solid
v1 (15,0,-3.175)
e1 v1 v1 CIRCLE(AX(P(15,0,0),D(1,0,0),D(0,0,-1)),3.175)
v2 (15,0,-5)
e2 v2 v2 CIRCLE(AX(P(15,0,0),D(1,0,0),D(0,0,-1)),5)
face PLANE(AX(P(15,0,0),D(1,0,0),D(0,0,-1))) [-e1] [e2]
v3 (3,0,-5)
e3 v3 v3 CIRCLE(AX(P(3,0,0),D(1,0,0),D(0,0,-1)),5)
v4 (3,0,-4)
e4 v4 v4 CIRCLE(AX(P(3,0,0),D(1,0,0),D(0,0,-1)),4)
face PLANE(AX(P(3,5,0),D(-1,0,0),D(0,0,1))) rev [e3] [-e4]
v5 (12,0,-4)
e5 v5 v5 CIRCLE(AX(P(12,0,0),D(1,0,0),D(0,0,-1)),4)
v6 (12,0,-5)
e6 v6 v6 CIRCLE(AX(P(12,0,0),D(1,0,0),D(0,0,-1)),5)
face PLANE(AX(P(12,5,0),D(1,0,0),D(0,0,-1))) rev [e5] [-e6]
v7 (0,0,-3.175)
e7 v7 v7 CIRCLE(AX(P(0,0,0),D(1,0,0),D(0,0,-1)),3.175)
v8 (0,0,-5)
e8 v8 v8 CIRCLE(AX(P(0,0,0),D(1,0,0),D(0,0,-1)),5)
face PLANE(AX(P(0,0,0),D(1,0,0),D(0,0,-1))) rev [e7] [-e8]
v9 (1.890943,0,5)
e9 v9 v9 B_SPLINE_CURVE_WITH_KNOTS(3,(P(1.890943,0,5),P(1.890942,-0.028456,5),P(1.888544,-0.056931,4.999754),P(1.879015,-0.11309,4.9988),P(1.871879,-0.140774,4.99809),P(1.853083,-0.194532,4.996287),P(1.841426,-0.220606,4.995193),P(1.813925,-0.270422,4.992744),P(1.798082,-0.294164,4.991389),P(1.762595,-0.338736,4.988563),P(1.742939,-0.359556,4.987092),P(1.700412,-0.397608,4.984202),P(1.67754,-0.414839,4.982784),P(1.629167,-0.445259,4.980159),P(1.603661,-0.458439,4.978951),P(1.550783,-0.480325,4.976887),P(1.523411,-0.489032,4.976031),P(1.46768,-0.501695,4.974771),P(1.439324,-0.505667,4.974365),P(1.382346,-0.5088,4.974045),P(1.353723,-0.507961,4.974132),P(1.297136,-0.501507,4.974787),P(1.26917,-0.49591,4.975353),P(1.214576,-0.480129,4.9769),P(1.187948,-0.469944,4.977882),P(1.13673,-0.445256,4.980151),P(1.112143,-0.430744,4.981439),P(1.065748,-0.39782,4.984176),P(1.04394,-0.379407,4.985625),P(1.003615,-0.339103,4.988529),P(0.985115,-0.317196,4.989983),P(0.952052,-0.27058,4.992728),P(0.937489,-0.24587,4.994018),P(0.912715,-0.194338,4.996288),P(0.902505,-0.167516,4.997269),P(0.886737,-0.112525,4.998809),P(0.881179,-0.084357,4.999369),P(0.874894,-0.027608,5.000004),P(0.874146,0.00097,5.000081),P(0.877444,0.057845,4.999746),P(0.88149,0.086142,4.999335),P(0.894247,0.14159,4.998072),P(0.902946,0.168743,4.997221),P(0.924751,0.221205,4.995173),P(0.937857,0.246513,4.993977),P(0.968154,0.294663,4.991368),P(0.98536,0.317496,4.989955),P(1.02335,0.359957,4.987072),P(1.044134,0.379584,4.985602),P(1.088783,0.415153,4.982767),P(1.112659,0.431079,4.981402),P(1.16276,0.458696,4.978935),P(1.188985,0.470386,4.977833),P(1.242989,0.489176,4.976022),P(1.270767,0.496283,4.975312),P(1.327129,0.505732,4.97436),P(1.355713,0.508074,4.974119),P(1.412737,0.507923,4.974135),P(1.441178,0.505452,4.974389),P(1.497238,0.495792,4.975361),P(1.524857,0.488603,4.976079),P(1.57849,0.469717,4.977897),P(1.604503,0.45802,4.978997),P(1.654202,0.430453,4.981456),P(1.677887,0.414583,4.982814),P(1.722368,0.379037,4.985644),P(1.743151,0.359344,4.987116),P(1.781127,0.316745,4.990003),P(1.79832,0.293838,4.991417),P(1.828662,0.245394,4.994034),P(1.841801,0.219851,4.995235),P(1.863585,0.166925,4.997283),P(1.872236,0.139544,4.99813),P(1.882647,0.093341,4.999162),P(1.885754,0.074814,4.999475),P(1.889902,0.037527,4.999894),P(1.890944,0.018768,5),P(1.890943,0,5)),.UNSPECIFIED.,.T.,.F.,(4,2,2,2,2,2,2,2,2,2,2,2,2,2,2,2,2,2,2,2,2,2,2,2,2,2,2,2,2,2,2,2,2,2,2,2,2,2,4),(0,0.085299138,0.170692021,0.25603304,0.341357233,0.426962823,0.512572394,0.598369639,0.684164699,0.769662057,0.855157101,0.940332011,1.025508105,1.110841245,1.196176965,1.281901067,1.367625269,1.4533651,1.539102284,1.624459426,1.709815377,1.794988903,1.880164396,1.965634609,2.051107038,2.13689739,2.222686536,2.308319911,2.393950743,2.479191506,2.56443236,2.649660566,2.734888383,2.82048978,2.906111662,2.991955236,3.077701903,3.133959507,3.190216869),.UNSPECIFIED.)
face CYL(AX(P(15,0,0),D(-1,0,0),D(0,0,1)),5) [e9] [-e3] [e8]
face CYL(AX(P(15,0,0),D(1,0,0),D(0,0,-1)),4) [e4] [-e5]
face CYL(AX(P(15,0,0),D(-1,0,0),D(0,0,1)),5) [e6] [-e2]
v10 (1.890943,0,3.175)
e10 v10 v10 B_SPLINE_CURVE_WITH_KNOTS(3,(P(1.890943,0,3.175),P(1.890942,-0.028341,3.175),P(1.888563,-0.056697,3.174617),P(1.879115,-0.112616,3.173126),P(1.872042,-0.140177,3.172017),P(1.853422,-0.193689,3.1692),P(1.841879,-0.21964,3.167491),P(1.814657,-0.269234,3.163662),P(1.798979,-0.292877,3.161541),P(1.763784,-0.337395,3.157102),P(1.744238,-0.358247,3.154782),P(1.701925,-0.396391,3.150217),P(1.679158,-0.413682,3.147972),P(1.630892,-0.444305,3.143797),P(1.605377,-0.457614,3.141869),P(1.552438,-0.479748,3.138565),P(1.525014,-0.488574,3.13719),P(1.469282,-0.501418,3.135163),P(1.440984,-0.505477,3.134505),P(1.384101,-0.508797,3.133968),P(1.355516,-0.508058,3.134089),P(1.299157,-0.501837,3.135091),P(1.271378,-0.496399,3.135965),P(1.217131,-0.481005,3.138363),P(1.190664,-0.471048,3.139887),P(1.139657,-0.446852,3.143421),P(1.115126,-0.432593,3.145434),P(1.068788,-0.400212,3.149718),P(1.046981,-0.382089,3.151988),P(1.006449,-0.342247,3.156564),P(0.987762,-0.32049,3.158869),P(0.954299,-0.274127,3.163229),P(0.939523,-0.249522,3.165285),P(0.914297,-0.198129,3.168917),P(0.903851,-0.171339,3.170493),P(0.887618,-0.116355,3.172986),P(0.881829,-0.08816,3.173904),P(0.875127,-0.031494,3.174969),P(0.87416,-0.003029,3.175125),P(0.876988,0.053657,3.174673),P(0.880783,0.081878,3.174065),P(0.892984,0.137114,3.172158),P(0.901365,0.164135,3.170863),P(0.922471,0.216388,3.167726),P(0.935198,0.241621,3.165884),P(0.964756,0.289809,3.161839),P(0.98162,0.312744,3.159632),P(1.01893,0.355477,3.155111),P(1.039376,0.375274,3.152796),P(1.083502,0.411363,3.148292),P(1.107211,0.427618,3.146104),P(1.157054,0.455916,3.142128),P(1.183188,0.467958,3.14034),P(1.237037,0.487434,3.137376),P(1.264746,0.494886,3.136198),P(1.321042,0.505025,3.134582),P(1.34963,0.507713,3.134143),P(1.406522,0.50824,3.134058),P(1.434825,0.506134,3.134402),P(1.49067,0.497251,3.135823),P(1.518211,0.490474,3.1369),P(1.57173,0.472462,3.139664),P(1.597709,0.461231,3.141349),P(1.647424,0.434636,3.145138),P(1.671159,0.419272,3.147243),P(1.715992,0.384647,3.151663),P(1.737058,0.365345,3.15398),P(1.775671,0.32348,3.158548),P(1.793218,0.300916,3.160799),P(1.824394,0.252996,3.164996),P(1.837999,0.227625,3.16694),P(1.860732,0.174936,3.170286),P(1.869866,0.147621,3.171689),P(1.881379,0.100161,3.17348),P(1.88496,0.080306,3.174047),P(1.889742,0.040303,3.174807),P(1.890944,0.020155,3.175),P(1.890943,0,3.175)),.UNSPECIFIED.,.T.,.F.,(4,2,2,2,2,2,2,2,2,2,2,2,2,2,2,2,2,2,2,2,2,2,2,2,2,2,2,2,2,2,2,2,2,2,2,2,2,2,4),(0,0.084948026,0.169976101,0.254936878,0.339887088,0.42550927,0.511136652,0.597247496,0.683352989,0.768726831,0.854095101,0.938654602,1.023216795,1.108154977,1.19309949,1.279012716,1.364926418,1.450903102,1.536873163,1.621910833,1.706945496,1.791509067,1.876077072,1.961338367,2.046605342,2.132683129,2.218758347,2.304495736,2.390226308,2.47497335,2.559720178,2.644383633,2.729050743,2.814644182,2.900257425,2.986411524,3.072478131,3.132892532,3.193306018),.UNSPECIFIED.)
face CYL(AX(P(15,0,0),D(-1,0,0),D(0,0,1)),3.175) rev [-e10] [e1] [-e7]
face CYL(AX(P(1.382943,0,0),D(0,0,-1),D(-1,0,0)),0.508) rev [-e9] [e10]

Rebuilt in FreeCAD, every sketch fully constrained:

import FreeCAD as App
import Part
import Sketcher
from FreeCAD import Vector
Q = App.Units.Quantity

doc = App.newDocument("Part")
body = doc.addObject("PartDesign::Body", "Body")

sketch1 = body.newObject("Sketcher::SketchObject", "Sketch")
sketch1.AttachmentSupport = (doc.getObject("YZ_Plane"), [""])
sketch1.MapMode = "FlatFace"
sketch1.addGeometry([
    Part.Circle(Vector(0, 0, 0), Vector(0, 0, 1), 5),
    Part.Circle(Vector(0, 0, 0), Vector(0, 0, 1), 3.175),
], False)
sketch1.addConstraint([
    Sketcher.Constraint("Coincident", 0, 3, -1, 1),
    Sketcher.Constraint("Coincident", 1, 3, -1, 1),
    Sketcher.Constraint("Diameter", 0, Q("10 mm")),
    Sketcher.Constraint("Diameter", 1, Q("6.35 mm")),
])
pad1 = body.newObject("PartDesign::Pad", "Pad")
pad1.Profile = sketch1
pad1.Length = 15

sketch2 = body.newObject("Sketcher::SketchObject", "Sketch001")
sketch2.AttachmentSupport = (doc.getObject("XY_Plane"), [""])
sketch2.MapMode = "FlatFace"
sketch2.addGeometry([
    Part.LineSegment(Vector(3, 5, 0), Vector(3, 4, 0)),
    Part.LineSegment(Vector(3, 4, 0), Vector(12, 4, 0)),
    Part.LineSegment(Vector(12, 4, 0), Vector(12, 5, 0)),
    Part.LineSegment(Vector(12, 5, 0), Vector(3, 5, 0)),
], False)
sketch2.addConstraint([
    Sketcher.Constraint("Coincident", 0, 2, 1, 1),
    Sketcher.Constraint("Coincident", 1, 2, 2, 1),
    Sketcher.Constraint("Coincident", 2, 2, 3, 1),
    Sketcher.Constraint("Coincident", 3, 2, 0, 1),
    Sketcher.Constraint("Vertical", 0),
    Sketcher.Constraint("Horizontal", 1),
    Sketcher.Constraint("Vertical", 2),
    Sketcher.Constraint("Horizontal", 3),
    Sketcher.Constraint("DistanceX", 1, 1, 1, 2, Q("9 mm")),
    Sketcher.Constraint("DistanceY", 0, 2, 0, 1, Q("1 mm")),
    Sketcher.Constraint("DistanceX", -1, 1, 0, 2, Q("3 mm")),
    Sketcher.Constraint("DistanceY", -1, 1, 0, 2, Q("4 mm")),
])
groove = body.newObject("PartDesign::Groove", "Groove")
groove.Profile = sketch2
groove.ReferenceAxis = (sketch2, ["H_Axis"])
groove.Angle = 360

sketch3 = body.newObject("Sketcher::SketchObject", "Sketch002")
sketch3.AttachmentSupport = (doc.getObject("YZ_Plane"), [""])
sketch3.MapMode = "FlatFace"
sketch3.AttachmentOffset = App.Placement(Vector(0, 0, 1.382943), App.Rotation())
sketch3.addGeometry([
    Part.LineSegment(Vector(0, 25.705237, 0), Vector(0, 0, 0)),
    Part.LineSegment(Vector(0, 0, 0), Vector(0.508, 0, 0)),
    Part.LineSegment(Vector(0.508, 0, 0), Vector(0.508, 25.4, 0)),
    Part.LineSegment(Vector(0.508, 25.4, 0), Vector(0, 25.705237, 0)),
], False)
sketch3.addConstraint([
    Sketcher.Constraint("Coincident", 0, 2, 1, 1),
    Sketcher.Constraint("Coincident", 1, 2, 2, 1),
    Sketcher.Constraint("Coincident", 2, 2, 3, 1),
    Sketcher.Constraint("Coincident", 3, 2, 0, 1),
    Sketcher.Constraint("Vertical", 0),
    Sketcher.Constraint("Horizontal", 1),
    Sketcher.Constraint("Vertical", 2),
    Sketcher.Constraint("Coincident", 0, 2, -1, 1),
    Sketcher.Constraint("Angle", 3, Q("149 deg")),
    Sketcher.Constraint("DistanceY", 2, 1, 2, 2, Q("25.4 mm")),
    Sketcher.Constraint("DistanceX", 1, 1, 1, 2, Q("0.508 mm")),
])
groove2 = body.newObject("PartDesign::Groove", "Groove001")
groove2.Profile = sketch3
groove2.ReferenceAxis = (sketch3, ["V_Axis"])
groove2.Angle = 360

doc.recompute()
